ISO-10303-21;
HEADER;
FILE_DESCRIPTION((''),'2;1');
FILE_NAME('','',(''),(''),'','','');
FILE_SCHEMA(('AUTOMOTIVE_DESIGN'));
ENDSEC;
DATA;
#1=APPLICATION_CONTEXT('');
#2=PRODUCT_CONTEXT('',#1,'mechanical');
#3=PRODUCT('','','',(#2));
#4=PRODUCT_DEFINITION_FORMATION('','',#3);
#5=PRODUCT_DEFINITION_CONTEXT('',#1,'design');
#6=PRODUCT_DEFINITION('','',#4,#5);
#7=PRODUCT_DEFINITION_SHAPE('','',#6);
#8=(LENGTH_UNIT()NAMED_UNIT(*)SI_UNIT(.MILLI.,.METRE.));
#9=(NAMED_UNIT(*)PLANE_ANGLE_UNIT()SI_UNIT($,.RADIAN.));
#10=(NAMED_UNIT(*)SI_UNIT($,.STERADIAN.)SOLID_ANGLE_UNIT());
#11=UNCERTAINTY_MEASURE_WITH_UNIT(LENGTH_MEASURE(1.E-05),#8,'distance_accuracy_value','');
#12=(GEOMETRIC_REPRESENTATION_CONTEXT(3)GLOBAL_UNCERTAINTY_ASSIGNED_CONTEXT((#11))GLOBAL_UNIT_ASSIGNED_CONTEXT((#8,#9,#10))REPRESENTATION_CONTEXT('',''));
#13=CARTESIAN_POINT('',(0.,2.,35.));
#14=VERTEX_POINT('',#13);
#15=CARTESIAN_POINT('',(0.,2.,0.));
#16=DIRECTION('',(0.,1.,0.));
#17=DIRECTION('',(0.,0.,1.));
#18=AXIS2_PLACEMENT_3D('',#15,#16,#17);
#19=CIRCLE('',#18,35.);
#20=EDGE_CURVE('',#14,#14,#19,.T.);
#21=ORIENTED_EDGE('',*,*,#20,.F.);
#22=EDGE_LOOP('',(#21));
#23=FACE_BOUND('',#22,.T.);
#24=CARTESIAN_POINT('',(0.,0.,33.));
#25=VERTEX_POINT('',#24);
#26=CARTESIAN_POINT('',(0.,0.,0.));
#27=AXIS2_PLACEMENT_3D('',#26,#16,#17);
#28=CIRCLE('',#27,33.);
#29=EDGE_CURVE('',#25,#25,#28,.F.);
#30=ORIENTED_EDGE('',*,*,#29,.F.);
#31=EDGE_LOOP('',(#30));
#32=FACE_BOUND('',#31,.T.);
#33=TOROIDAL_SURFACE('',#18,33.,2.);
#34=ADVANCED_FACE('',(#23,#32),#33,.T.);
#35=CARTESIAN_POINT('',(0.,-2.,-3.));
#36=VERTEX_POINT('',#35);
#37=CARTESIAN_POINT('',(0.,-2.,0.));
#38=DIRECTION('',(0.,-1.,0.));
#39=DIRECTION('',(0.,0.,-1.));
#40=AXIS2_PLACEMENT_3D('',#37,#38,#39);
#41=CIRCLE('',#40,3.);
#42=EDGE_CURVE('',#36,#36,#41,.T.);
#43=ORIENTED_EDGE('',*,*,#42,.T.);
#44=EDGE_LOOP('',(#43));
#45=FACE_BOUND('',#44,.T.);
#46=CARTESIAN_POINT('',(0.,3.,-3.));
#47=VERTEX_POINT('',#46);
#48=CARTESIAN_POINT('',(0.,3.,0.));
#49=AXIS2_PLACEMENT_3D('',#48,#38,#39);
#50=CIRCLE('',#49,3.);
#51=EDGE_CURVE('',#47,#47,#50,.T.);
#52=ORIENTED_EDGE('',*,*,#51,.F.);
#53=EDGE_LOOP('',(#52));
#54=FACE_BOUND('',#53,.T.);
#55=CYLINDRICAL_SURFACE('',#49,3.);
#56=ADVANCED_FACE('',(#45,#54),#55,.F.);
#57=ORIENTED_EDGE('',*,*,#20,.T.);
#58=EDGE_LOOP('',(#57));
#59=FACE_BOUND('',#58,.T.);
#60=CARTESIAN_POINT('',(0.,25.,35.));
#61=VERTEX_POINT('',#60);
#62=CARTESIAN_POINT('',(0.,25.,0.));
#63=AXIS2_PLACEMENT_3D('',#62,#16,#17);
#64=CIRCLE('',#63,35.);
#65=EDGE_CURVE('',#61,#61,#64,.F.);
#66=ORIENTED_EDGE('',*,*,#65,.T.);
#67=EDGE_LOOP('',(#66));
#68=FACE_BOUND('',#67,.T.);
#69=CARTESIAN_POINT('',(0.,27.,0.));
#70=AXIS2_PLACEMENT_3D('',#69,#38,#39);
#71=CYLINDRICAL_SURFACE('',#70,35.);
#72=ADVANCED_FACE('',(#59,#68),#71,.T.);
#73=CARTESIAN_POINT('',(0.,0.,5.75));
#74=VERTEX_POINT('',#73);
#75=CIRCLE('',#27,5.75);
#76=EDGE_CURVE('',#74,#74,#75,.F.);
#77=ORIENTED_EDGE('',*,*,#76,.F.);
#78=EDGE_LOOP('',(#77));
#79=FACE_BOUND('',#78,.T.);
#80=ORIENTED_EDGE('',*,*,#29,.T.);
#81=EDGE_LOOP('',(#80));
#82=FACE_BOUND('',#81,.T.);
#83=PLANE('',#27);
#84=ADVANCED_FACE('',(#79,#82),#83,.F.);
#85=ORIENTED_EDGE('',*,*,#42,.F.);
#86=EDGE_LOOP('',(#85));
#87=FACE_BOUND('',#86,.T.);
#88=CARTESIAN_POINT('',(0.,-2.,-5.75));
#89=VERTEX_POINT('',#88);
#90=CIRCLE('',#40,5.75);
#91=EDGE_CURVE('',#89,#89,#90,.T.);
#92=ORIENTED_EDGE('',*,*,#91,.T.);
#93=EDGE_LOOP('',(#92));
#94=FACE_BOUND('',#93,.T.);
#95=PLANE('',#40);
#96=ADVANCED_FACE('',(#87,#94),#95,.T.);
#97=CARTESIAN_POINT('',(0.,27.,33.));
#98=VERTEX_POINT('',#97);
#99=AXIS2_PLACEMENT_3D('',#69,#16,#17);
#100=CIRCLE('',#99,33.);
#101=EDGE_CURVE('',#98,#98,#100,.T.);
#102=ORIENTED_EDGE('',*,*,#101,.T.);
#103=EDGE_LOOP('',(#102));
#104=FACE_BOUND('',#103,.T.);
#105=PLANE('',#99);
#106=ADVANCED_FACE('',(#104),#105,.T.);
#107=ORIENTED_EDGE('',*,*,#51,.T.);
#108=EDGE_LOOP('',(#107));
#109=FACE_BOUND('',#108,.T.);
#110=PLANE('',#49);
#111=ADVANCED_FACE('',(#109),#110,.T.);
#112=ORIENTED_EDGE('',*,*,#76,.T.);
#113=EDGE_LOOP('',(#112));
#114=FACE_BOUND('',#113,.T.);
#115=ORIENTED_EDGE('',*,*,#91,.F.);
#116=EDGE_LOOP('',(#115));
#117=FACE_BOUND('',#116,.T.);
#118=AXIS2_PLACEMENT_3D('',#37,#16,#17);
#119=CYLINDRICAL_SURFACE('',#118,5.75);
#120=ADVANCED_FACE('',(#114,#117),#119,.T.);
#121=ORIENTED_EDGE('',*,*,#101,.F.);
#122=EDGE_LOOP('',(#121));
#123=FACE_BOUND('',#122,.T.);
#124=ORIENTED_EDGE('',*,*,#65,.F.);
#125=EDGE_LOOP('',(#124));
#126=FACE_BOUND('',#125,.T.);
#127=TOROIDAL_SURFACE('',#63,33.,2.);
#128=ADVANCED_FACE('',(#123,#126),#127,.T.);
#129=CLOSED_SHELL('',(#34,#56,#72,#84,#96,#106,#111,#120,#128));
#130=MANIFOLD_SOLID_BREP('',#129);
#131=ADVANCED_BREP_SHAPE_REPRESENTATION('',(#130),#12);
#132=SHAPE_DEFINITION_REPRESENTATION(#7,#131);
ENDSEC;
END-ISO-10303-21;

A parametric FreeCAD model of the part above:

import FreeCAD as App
import Part
import Sketcher

V = App.Vector
Q = App.Units.Quantity


def edges_at(feature, points):
    """Names of the edges that pass closest to the given points."""
    edges = feature.Shape.Edges
    near = lambda p: min(range(len(edges)), key=lambda i: edges[i].distToShape(Part.Vertex(*p))[0])
    return sorted({f"Edge{near(p) + 1}" for p in points})

doc = App.newDocument("Part")
body = doc.addObject("PartDesign::Body", "Body")

sketch1 = body.newObject("Sketcher::SketchObject", "Sketch")
sketch1.AttachmentSupport = (doc.getObject("XZ_Plane"), [""])
sketch1.MapMode = "FlatFace"
sketch1.addGeometry(Part.Circle(V(0, 0, 0), V(0, 0, 1), 35), False)
sketch1.addConstraint(Sketcher.Constraint("Coincident", 0, 3, -1, 1))
sketch1.addConstraint(Sketcher.Constraint("Diameter", 0, Q("70 mm")))
pad1 = body.newObject("PartDesign::Pad", "Pad")
pad1.Profile = sketch1
pad1.Length = 27
pad1.Reversed = True
doc.recompute()

fillet = body.newObject("PartDesign::Fillet", "Fillet")
fillet.Base = (pad1, edges_at(pad1, [(0, 0, -35), (0, 27, -35)]))
fillet.Radius = 2

sketch2 = body.newObject("Sketcher::SketchObject", "Sketch001")
sketch2.AttachmentSupport = (doc.getObject("XZ_Plane"), [""])
sketch2.MapMode = "FlatFace"
sketch2.addGeometry(Part.Circle(V(0, 0, 0), V(0, 0, 1), 6), False)
sketch2.addConstraint(Sketcher.Constraint("Coincident", 0, 3, -1, 1))
sketch2.addConstraint(Sketcher.Constraint("Diameter", 0, Q("11.5 mm")))
pad2 = body.newObject("PartDesign::Pad", "Pad001")
pad2.Profile = sketch2
pad2.Length = 2

sketch3 = body.newObject("Sketcher::SketchObject", "Sketch002")
sketch3.AttachmentSupport = (doc.getObject("XZ_Plane"), [""])
sketch3.MapMode = "FlatFace"
sketch3.AttachmentOffset = App.Placement(V(0, 0, 2), App.Rotation())
sketch3.addGeometry(Part.Circle(V(0, 0, 0), V(0, 0, 1), 3), False)
sketch3.addConstraint(Sketcher.Constraint("Coincident", 0, 3, -1, 1))
sketch3.addConstraint(Sketcher.Constraint("Diameter", 0, Q("6 mm")))
pocket1 = body.newObject("PartDesign::Pocket", "Pocket")
pocket1.Profile = sketch3
pocket1.Length = 5

doc.recompute()
